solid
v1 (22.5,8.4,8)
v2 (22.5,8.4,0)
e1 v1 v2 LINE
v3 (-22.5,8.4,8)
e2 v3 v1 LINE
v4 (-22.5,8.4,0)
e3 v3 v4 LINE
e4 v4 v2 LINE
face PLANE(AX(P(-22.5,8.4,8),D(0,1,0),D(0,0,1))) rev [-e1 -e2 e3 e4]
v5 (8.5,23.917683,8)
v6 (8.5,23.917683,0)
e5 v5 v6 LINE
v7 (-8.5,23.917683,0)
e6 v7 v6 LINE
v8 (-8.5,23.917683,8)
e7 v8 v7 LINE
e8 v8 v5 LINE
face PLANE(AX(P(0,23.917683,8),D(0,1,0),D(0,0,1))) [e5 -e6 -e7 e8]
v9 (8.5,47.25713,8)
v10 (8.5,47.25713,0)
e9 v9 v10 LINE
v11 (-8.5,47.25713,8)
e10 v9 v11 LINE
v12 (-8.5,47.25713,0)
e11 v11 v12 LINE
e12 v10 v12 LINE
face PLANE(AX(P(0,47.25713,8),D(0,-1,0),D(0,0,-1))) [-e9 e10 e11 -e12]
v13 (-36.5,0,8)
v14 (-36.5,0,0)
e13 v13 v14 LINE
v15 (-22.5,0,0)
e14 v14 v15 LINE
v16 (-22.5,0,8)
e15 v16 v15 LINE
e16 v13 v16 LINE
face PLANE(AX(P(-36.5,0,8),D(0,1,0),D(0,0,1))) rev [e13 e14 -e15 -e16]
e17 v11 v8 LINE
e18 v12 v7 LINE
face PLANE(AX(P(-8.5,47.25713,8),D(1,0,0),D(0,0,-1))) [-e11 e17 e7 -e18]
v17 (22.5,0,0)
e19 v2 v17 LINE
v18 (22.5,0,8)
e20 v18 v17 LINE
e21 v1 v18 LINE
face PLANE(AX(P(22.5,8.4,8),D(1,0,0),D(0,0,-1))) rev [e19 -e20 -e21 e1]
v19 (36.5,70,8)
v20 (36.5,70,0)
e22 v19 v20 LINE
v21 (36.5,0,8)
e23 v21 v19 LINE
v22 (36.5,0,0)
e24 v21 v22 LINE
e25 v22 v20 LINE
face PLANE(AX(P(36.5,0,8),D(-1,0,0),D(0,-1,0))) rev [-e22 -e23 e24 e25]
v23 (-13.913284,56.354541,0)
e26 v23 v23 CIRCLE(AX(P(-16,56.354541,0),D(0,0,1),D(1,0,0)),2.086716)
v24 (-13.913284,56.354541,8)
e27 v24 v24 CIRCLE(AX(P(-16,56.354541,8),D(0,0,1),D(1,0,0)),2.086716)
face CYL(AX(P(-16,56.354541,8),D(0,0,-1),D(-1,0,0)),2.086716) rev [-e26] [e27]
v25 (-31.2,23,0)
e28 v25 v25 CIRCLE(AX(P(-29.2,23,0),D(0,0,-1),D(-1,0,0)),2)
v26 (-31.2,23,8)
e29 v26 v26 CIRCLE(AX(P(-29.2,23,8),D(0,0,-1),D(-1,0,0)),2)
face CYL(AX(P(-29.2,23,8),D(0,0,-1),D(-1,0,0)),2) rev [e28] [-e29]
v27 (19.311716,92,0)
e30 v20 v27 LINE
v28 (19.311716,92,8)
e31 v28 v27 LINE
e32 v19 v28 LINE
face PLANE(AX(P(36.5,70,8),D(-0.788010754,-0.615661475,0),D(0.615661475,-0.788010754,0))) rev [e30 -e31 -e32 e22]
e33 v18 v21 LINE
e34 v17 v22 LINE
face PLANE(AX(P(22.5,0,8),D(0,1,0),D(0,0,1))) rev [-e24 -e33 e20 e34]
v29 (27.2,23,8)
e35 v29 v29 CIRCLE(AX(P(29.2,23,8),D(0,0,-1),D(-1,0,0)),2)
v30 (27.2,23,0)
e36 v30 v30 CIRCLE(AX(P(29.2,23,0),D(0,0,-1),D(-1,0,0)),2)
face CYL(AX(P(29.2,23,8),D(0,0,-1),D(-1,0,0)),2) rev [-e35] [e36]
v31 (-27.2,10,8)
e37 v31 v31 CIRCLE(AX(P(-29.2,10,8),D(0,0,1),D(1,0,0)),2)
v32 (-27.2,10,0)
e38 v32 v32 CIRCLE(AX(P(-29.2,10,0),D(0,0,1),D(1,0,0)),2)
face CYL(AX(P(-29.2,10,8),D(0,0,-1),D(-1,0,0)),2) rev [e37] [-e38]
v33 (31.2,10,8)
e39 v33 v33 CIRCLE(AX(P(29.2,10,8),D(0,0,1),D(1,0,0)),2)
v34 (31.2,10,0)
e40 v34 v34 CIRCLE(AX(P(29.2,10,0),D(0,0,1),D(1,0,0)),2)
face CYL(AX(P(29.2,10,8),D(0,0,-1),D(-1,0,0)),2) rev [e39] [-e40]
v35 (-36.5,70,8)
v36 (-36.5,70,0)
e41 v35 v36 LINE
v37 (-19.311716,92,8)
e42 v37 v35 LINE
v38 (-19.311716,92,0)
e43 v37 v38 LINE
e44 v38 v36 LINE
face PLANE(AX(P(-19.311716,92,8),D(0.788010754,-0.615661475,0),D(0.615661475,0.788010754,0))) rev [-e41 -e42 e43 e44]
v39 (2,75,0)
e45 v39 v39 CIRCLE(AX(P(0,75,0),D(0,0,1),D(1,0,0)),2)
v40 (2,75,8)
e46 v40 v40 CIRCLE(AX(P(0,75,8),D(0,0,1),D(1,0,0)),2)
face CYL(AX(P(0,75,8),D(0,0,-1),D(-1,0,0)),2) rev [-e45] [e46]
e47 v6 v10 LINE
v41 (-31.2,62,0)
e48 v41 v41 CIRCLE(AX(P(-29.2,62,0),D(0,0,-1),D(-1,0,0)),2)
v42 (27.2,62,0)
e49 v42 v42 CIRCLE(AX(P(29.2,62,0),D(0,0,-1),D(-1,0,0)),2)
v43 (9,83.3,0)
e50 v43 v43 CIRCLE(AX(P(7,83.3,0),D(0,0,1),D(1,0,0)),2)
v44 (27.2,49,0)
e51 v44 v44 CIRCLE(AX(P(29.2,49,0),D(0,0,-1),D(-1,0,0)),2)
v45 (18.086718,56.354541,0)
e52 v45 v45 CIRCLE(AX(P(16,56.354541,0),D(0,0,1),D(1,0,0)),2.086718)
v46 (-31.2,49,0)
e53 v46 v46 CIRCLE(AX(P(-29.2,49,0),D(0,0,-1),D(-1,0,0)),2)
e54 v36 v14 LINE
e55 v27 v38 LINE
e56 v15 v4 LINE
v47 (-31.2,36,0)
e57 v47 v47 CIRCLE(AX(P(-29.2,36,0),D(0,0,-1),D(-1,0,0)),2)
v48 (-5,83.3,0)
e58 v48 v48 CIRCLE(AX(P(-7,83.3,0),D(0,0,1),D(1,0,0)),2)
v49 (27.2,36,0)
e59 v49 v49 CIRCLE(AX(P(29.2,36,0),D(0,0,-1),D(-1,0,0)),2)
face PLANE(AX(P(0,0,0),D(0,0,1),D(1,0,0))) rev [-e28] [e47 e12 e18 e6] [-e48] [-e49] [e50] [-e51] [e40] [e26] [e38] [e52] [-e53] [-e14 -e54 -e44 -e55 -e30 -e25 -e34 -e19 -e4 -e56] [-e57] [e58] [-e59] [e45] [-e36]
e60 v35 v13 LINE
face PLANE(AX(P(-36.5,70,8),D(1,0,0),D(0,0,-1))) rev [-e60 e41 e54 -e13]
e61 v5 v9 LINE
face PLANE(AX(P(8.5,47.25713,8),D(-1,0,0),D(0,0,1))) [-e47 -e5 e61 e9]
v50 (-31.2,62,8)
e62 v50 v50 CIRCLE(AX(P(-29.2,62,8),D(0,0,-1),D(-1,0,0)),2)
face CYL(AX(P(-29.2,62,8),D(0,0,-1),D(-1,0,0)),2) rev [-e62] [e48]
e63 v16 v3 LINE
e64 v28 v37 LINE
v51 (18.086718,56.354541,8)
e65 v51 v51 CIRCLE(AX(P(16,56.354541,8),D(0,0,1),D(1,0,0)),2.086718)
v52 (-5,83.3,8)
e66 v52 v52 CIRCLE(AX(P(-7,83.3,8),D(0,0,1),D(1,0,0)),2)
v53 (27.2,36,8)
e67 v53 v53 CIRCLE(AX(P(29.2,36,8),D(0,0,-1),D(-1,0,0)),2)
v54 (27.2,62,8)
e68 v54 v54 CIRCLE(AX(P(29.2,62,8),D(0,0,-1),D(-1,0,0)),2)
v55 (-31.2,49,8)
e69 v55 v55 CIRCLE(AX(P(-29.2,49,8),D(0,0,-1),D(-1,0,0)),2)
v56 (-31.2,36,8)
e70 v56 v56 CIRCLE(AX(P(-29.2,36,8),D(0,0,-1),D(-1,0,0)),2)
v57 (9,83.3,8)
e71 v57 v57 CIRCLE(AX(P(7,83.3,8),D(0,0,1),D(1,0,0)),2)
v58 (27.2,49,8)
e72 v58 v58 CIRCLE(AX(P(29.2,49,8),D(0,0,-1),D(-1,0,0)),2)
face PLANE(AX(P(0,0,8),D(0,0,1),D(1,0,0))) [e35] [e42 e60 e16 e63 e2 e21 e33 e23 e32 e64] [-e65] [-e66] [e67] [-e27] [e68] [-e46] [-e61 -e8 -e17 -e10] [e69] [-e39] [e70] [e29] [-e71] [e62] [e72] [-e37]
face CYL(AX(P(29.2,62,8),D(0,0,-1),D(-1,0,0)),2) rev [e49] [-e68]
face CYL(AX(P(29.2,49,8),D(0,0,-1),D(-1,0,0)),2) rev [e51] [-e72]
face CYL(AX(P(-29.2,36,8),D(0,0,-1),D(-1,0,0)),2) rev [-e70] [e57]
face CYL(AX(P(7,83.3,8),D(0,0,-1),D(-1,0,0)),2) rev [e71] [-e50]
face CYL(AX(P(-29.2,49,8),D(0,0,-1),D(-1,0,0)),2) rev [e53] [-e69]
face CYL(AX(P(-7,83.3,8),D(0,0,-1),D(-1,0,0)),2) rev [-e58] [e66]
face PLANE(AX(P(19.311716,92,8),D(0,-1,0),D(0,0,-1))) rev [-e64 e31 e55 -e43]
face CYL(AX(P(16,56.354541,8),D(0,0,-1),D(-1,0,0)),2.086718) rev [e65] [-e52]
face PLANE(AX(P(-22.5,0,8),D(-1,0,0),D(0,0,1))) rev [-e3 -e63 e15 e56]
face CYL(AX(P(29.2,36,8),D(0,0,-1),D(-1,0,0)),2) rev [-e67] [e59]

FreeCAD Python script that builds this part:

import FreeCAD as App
import Part
import Sketcher

V = App.Vector
Q = App.Units.Quantity

doc = App.newDocument("Part")
body = doc.addObject("PartDesign::Body", "Body")

# Sketch on XY plane
sketch1 = body.newObject("Sketcher::SketchObject", "Sketch")
sketch1.AttachmentSupport = (doc.getObject("XY_Plane"), [""])
sketch1.MapMode = "FlatFace"
sketch1.addGeometry(Part.LineSegment(V(19.3, 92, 0), V(-19.3, 92, 0)), False)
sketch1.addGeometry(Part.LineSegment(V(-19.3, 92, 0), V(-36.5, 70, 0)), False)
sketch1.addGeometry(Part.LineSegment(V(-36.5, 70, 0), V(-36.5, 0, 0)), False)
sketch1.addGeometry(Part.LineSegment(V(-36.5, 0, 0), V(-22.5, 0, 0)), False)
sketch1.addGeometry(Part.LineSegment(V(-22.5, 0, 0), V(-22.5, 8.4, 0)), False)
sketch1.addGeometry(Part.LineSegment(V(-22.5, 8.4, 0), V(22.5, 8.4, 0)), False)
sketch1.addGeometry(Part.LineSegment(V(22.5, 8.4, 0), V(22.5, 0, 0)), False)
sketch1.addGeometry(Part.LineSegment(V(22.5, 0, 0), V(36.5, 0, 0)), False)
sketch1.addGeometry(Part.LineSegment(V(36.5, 0, 0), V(36.5, 70, 0)), False)
sketch1.addGeometry(Part.LineSegment(V(36.5, 70, 0), V(19.3, 92, 0)), False)
sketch1.addGeometry(Part.Circle(V(-29.2, 10, 0), V(0, 0, 1), 2), False)
sketch1.addGeometry(Part.Circle(V(29.2, 10, 0), V(0, 0, 1), 2), False)
sketch1.addGeometry(Part.LineSegment(V(-8.5, 47.3, 0), V(8.5, 47.3, 0)), False)
sketch1.addGeometry(Part.LineSegment(V(8.5, 47.3, 0), V(8.5, 23.9, 0)), False)
sketch1.addGeometry(Part.LineSegment(V(8.5, 23.9, 0), V(-8.5, 23.9, 0)), False)
sketch1.addGeometry(Part.LineSegment(V(-8.5, 23.9, 0), V(-8.5, 47.3, 0)), False)
sketch1.addGeometry(Part.Circle(V(-16, 56.4, 0), V(0, 0, 1), 2.1), False)
sketch1.addGeometry(Part.Circle(V(-7, 83.3, 0), V(0, 0, 1), 2), False)
sketch1.addGeometry(Part.Circle(V(16, 56.4, 0), V(0, 0, 1), 2.1), False)
sketch1.addGeometry(Part.Circle(V(0, 75, 0), V(0, 0, 1), 2), False)
sketch1.addGeometry(Part.Circle(V(7, 83.3, 0), V(0, 0, 1), 2), False)
sketch1.addConstraint(Sketcher.Constraint("Coincident", 0, 2, 1, 1))
sketch1.addConstraint(Sketcher.Constraint("Coincident", 1, 2, 2, 1))
sketch1.addConstraint(Sketcher.Constraint("Coincident", 2, 2, 3, 1))
sketch1.addConstraint(Sketcher.Constraint("Coincident", 3, 2, 4, 1))
sketch1.addConstraint(Sketcher.Constraint("Coincident", 4, 2, 5, 1))
sketch1.addConstraint(Sketcher.Constraint("Coincident", 5, 2, 6, 1))
sketch1.addConstraint(Sketcher.Constraint("Coincident", 6, 2, 7, 1))
sketch1.addConstraint(Sketcher.Constraint("Coincident", 7, 2, 8, 1))
sketch1.addConstraint(Sketcher.Constraint("Coincident", 8, 2, 9, 1))
sketch1.addConstraint(Sketcher.Constraint("Coincident", 9, 2, 0, 1))
sketch1.addConstraint(Sketcher.Constraint("Coincident", 12, 2, 13, 1))
sketch1.addConstraint(Sketcher.Constraint("Coincident", 13, 2, 14, 1))
sketch1.addConstraint(Sketcher.Constraint("Coincident", 14, 2, 15, 1))
sketch1.addConstraint(Sketcher.Constraint("Coincident", 15, 2, 12, 1))
sketch1.addConstraint(Sketcher.Constraint("Horizontal", 0))
sketch1.addConstraint(Sketcher.Constraint("Vertical", 2))
sketch1.addConstraint(Sketcher.Constraint("Horizontal", 3))
sketch1.addConstraint(Sketcher.Constraint("Vertical", 4))
sketch1.addConstraint(Sketcher.Constraint("Horizontal", 5))
sketch1.addConstraint(Sketcher.Constraint("Vertical", 6))
sketch1.addConstraint(Sketcher.Constraint("Horizontal", 7))
sketch1.addConstraint(Sketcher.Constraint("Vertical", 8))
sketch1.addConstraint(Sketcher.Constraint("Horizontal", 12))
sketch1.addConstraint(Sketcher.Constraint("Vertical", 13))
sketch1.addConstraint(Sketcher.Constraint("Horizontal", 14))
sketch1.addConstraint(Sketcher.Constraint("Vertical", 15))
sketch1.addConstraint(Sketcher.Constraint("Equal", 10, 11))
sketch1.addConstraint(Sketcher.Constraint("Equal", 11, 17))
sketch1.addConstraint(Sketcher.Constraint("Equal", 16, 18))
sketch1.addConstraint(Sketcher.Constraint("Equal", 17, 19))
sketch1.addConstraint(Sketcher.Constraint("Equal", 19, 20))
sketch1.addConstraint(Sketcher.Constraint("Symmetric", 3, 2, 6, 2, -1, 1))
sketch1.addConstraint(Sketcher.Constraint("Symmetric", 10, 3, 11, 3, -2))
sketch1.addConstraint(Sketcher.Constraint("Symmetric", 16, 3, 18, 3, -2))
sketch1.addConstraint(Sketcher.Constraint("Symmetric", 17, 3, 20, 3, -2))
sketch1.addConstraint(Sketcher.Constraint("Symmetric", 2, 2, 7, 2, -2))
sketch1.addConstraint(Sketcher.Constraint("PointOnObject", 19, 3, -2))
sketch1.addConstraint(Sketcher.Constraint("Horizontal", 1, 2, 8, 2))
sketch1.addConstraint(Sketcher.Constraint("Equal", 1, 9))
sketch1.addConstraint(Sketcher.Constraint("Diameter", 10, 4.0))
sketch1.addConstraint(Sketcher.Constraint("DistanceX", 3, 1, 3, 2, 14.0))
sketch1.addConstraint(Sketcher.Constraint("DistanceX", 5, 1, 5, 2, 45.0))
sketch1.addConstraint(Sketcher.Constraint("DistanceX", 12, 1, 12, 2, 17.0))
sketch1.addConstraint(Sketcher.Constraint("DistanceY", 2, 2, 2, 1, 70.0))
sketch1.addConstraint(Sketcher.Constraint("Angle", 1, Q("-128 deg")))
sketch1.addConstraint(Sketcher.Constraint("DistanceY", 4, 1, 4, 2, 8.4))
sketch1.addConstraint(Sketcher.Constraint("DistanceY", -1, 1, 10, 3, 10.0))
sketch1.addConstraint(Sketcher.Constraint("DistanceX", 16, 3, -1, 1, 16.0))
sketch1.addConstraint(Sketcher.Constraint("DistanceX", 17, 3, -1, 1, 7.0))
sketch1.addConstraint(Sketcher.Constraint("DistanceY", -1, 1, 19, 3, 75.0))
sketch1.addConstraint(Sketcher.Constraint("DistanceY", -1, 1, 0, 2, 92.0))
sketch1.addConstraint(Sketcher.Constraint("DistanceX", 12, 2, 8, 2, 28.0))
sketch1.addConstraint(Sketcher.Constraint("DistanceX", 10, 3, -1, 1, 29.2))
sketch1.addConstraint(Sketcher.Constraint("DistanceY", -1, 1, 17, 3, 83.3))
sketch1.addConstraint(Sketcher.Constraint("Diameter", 16, 4.173432))
sketch1.addConstraint(Sketcher.Constraint("DistanceY", 13, 2, 13, 1, 23.339447))
sketch1.addConstraint(Sketcher.Constraint("DistanceY", -1, 1, 16, 3, 56.354541))
sketch1.addConstraint(Sketcher.Constraint("DistanceY", -1, 1, 12, 2, 47.25713))
pad1 = body.newObject("PartDesign::Pad", "Pad")
pad1.Profile = sketch1
pad1.Length = 8

# Sketch on XY plane
sketch2 = body.newObject("Sketcher::SketchObject", "Sketch001")
sketch2.AttachmentSupport = (doc.getObject("XY_Plane"), [""])
sketch2.MapMode = "FlatFace"
sketch2.addGeometry(Part.Circle(V(-29.2, 23, 0), V(0, 0, 1), 2), False)
sketch2.addGeometry(Part.Circle(V(-29.2, 36, 0), V(0, 0, 1), 2), False)
sketch2.addGeometry(Part.Circle(V(-29.2, 49, 0), V(0, 0, 1), 2), False)
sketch2.addGeometry(Part.Circle(V(-29.2, 62, 0), V(0, 0, 1), 2), False)
sketch2.addGeometry(Part.Circle(V(29.2, 49, 0), V(0, 0, 1), 2), False)
sketch2.addGeometry(Part.Circle(V(29.2, 36, 0), V(0, 0, 1), 2), False)
sketch2.addGeometry(Part.Circle(V(29.2, 62, 0), V(0, 0, 1), 2), False)
sketch2.addGeometry(Part.Circle(V(29.2, 23, 0), V(0, 0, 1), 2), False)
sketch2.addConstraint(Sketcher.Constraint("Equal", 0, 1))
sketch2.addConstraint(Sketcher.Constraint("Equal", 1, 2))
sketch2.addConstraint(Sketcher.Constraint("Equal", 2, 3))
sketch2.addConstraint(Sketcher.Constraint("Equal", 3, 4))
sketch2.addConstraint(Sketcher.Constraint("Equal", 4, 5))
sketch2.addConstraint(Sketcher.Constraint("Equal", 5, 6))
sketch2.addConstraint(Sketcher.Constraint("Equal", 6, 7))
sketch2.addConstraint(Sketcher.Constraint("Symmetric", 2, 3, 4, 3, -2))
sketch2.addConstraint(Sketcher.Constraint("Symmetric", 1, 3, 5, 3, -2))
sketch2.addConstraint(Sketcher.Constraint("Symmetric", 3, 3, 6, 3, -2))
sketch2.addConstraint(Sketcher.Constraint("Symmetric", 0, 3, 7, 3, -2))
sketch2.addConstraint(Sketcher.Constraint("Vertical", 0, 3, 1, 3))
sketch2.addConstraint(Sketcher.Constraint("Vertical", 1, 3, 2, 3))
sketch2.addConstraint(Sketcher.Constraint("Vertical", 2, 3, 3, 3))
sketch2.addConstraint(Sketcher.Constraint("Diameter", 0, 4.0))
sketch2.addConstraint(Sketcher.Constraint("DistanceY", -1, 1, 0, 3, 23.0))
sketch2.addConstraint(Sketcher.Constraint("DistanceY", -1, 1, 1, 3, 36.0))
sketch2.addConstraint(Sketcher.Constraint("DistanceY", -1, 1, 2, 3, 49.0))
sketch2.addConstraint(Sketcher.Constraint("DistanceY", -1, 1, 3, 3, 62.0))
sketch2.addConstraint(Sketcher.Constraint("DistanceX", 0, 3, -1, 1, 29.2))
pocket1 = body.newObject("PartDesign::Pocket", "Pocket")
pocket1.Profile = sketch2
pocket1.Type = "ThroughAll"
pocket1.Reversed = True

doc.recompute()
